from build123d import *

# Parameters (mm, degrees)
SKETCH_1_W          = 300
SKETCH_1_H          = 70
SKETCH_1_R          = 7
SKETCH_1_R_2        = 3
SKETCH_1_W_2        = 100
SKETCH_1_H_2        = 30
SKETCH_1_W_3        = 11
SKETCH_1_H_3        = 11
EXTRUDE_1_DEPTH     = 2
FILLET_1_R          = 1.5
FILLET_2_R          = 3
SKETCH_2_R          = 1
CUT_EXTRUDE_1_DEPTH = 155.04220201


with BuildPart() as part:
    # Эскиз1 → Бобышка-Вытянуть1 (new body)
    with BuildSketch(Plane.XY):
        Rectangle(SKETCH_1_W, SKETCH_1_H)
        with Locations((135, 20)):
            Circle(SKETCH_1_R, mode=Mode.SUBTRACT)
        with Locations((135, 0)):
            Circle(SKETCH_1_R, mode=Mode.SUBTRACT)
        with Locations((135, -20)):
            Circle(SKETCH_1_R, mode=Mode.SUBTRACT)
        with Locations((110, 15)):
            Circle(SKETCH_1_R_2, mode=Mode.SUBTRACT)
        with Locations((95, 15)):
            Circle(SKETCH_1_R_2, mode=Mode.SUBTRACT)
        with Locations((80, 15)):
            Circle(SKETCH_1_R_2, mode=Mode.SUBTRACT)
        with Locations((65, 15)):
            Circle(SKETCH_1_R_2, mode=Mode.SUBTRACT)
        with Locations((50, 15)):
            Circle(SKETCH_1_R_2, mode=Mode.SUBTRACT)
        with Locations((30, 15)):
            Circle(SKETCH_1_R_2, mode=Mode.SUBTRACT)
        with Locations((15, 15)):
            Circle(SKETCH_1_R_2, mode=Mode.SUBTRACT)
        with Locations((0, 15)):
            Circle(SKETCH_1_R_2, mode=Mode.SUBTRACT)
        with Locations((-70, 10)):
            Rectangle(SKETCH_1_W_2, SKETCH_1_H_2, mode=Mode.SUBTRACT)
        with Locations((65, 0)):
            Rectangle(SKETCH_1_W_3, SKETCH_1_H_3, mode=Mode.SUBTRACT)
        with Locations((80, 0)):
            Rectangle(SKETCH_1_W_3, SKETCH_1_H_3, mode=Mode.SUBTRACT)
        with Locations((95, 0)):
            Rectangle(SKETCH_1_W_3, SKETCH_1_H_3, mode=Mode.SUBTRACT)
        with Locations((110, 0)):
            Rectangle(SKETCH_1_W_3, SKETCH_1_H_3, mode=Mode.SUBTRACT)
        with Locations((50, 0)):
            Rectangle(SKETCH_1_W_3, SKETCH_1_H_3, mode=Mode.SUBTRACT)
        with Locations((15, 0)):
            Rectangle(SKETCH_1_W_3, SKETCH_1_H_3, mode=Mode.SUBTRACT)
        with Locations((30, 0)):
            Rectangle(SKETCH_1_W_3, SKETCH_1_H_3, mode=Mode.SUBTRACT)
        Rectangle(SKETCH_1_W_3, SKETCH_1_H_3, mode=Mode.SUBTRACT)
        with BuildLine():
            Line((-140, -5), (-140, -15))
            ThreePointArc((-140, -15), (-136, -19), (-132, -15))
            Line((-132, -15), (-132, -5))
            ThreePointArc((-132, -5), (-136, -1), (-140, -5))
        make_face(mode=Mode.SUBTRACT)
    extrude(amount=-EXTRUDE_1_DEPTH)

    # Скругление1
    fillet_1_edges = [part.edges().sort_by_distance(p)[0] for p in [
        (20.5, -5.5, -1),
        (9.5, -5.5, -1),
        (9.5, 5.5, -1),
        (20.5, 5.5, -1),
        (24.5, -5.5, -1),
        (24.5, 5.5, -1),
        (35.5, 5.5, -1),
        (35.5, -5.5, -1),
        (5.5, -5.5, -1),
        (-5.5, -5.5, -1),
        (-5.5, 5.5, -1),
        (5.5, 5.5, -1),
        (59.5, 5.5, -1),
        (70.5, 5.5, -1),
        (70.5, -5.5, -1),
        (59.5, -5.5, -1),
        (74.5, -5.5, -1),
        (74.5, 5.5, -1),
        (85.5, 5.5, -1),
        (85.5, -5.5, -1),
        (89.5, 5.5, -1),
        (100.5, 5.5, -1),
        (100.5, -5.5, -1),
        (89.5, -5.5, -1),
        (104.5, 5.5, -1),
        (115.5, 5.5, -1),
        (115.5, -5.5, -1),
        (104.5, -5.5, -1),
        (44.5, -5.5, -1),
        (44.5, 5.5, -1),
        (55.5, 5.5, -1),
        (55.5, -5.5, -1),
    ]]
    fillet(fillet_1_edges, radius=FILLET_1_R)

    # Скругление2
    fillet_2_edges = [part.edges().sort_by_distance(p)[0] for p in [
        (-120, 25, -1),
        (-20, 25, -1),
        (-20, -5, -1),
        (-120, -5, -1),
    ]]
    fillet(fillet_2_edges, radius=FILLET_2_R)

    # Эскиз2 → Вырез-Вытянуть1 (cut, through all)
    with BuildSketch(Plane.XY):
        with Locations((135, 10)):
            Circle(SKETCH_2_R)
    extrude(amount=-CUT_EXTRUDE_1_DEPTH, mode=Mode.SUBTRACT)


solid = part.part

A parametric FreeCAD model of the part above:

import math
import FreeCAD as App
import Part
import Sketcher
from FreeCAD import Vector


def edges_at(feature, points):
    """Names of the edges that pass closest to the given points."""
    edges = feature.Shape.Edges
    near = lambda p: min(range(len(edges)), key=lambda i: edges[i].distToShape(Part.Vertex(*p))[0])
    return sorted({f"Edge{near(p) + 1}" for p in points})

doc = App.newDocument("Part")
params = doc.addObject("Spreadsheet::Sheet", "Params")
for row, (alias, value) in enumerate([
    ("sketch1_diameter", "14 mm"),
    ("sketch1_diameter2", "6 mm"),
    ("sketch1_radius", "4 mm"),
    ("sketch1_width", "300 mm"),
    ("sketch1_width2", "100 mm"),
    ("pad1_length", "2 mm"),
    ("fillet_radius", "1.5 mm"),
    ("fillet2_radius", "3 mm"),
    ("sketch2_diameter", "2 mm"),
], start=1):
    params.set(f"A{row}", alias)
    params.set(f"B{row}", "=" + value)
    params.setAlias(f"B{row}", alias)

body = doc.addObject("PartDesign::Body", "Body")

sketch1 = doc.addObject("Sketcher::SketchObject", "Sketch")
body.addObject(sketch1)
sketch1.AttachmentSupport = (doc.XY_Plane, [""])
sketch1.MapMode = "FlatFace"
sketch1.addGeometry([
    Part.LineSegment(Vector(-150, 35, 0), Vector(-150, -35, 0)),
    Part.LineSegment(Vector(-150, -35, 0), Vector(150, -35, 0)),
    Part.LineSegment(Vector(150, -35, 0), Vector(150, 35, 0)),
    Part.LineSegment(Vector(150, 35, 0), Vector(-150, 35, 0)),
    Part.LineSegment(Vector(-140, -15, 0), Vector(-140, -5, 0)),
    Part.ArcOfCircle(Part.Circle(Vector(-136, -5, 0), Vector(0, 0, 1), 4), math.radians(0), math.radians(180)),
    Part.LineSegment(Vector(-132, -5, 0), Vector(-132, -15, 0)),
    Part.ArcOfCircle(Part.Circle(Vector(-136, -15, 0), Vector(0, 0, 1), 4), math.radians(180), math.radians(360)),
    Part.Circle(Vector(135, -20, 0), Vector(0, 0, 1), 7),
    Part.LineSegment(Vector(-20, -5, 0), Vector(-120, -5, 0)),
    Part.LineSegment(Vector(-120, -5, 0), Vector(-120, 25, 0)),
    Part.LineSegment(Vector(-120, 25, 0), Vector(-20, 25, 0)),
    Part.LineSegment(Vector(-20, 25, 0), Vector(-20, -5, 0)),
    Part.LineSegment(Vector(5.5, -5.5, 0), Vector(-5.5, -5.5, 0)),
    Part.LineSegment(Vector(-5.5, -5.5, 0), Vector(-5.5, 5.5, 0)),
    Part.LineSegment(Vector(-5.5, 5.5, 0), Vector(5.5, 5.5, 0)),
    Part.LineSegment(Vector(5.5, 5.5, 0), Vector(5.5, -5.5, 0)),
    Part.Circle(Vector(0, 15, 0), Vector(0, 0, 1), 3),
    Part.LineSegment(Vector(20.5, -5.5, 0), Vector(9.5, -5.5, 0)),
    Part.LineSegment(Vector(9.5, -5.5, 0), Vector(9.5, 5.5, 0)),
    Part.LineSegment(Vector(9.5, 5.5, 0), Vector(20.5, 5.5, 0)),
    Part.LineSegment(Vector(20.5, 5.5, 0), Vector(20.5, -5.5, 0)),
    Part.LineSegment(Vector(35.5, -5.5, 0), Vector(24.5, -5.5, 0)),
    Part.LineSegment(Vector(24.5, -5.5, 0), Vector(24.5, 5.5, 0)),
    Part.LineSegment(Vector(24.5, 5.5, 0), Vector(35.5, 5.5, 0)),
    Part.LineSegment(Vector(35.5, 5.5, 0), Vector(35.5, -5.5, 0)),
    Part.LineSegment(Vector(55.5, -5.5, 0), Vector(44.5, -5.5, 0)),
    Part.LineSegment(Vector(44.5, -5.5, 0), Vector(44.5, 5.5, 0)),
    Part.LineSegment(Vector(44.5, 5.5, 0), Vector(55.5, 5.5, 0)),
    Part.LineSegment(Vector(55.5, 5.5, 0), Vector(55.5, -5.5, 0)),
    Part.LineSegment(Vector(70.5, -5.5, 0), Vector(59.5, -5.5, 0)),
    Part.LineSegment(Vector(59.5, -5.5, 0), Vector(59.5, 5.5, 0)),
    Part.LineSegment(Vector(59.5, 5.5, 0), Vector(70.5, 5.5, 0)),
    Part.LineSegment(Vector(70.5, 5.5, 0), Vector(70.5, -5.5, 0)),
    Part.LineSegment(Vector(85.5, -5.5, 0), Vector(74.5, -5.5, 0)),
    Part.LineSegment(Vector(74.5, -5.5, 0), Vector(74.5, 5.5, 0)),
    Part.LineSegment(Vector(74.5, 5.5, 0), Vector(85.5, 5.5, 0)),
    Part.LineSegment(Vector(85.5, 5.5, 0), Vector(85.5, -5.5, 0)),
    Part.LineSegment(Vector(100.5, -5.5, 0), Vector(89.5, -5.5, 0)),
    Part.LineSegment(Vector(89.5, -5.5, 0), Vector(89.5, 5.5, 0)),
    Part.LineSegment(Vector(89.5, 5.5, 0), Vector(100.5, 5.5, 0)),
    Part.LineSegment(Vector(100.5, 5.5, 0), Vector(100.5, -5.5, 0)),
    Part.LineSegment(Vector(115.5, -5.5, 0), Vector(104.5, -5.5, 0)),
    Part.LineSegment(Vector(104.5, -5.5, 0), Vector(104.5, 5.5, 0)),
    Part.LineSegment(Vector(104.5, 5.5, 0), Vector(115.5, 5.5, 0)),
    Part.LineSegment(Vector(115.5, 5.5, 0), Vector(115.5, -5.5, 0)),
    Part.Circle(Vector(135, 0, 0), Vector(0, 0, 1), 7),
    Part.Circle(Vector(15, 15, 0), Vector(0, 0, 1), 3),
    Part.Circle(Vector(30, 15, 0), Vector(0, 0, 1), 3),
    Part.Circle(Vector(50, 15, 0), Vector(0, 0, 1), 3),
    Part.Circle(Vector(65, 15, 0), Vector(0, 0, 1), 3),
    Part.Circle(Vector(80, 15, 0), Vector(0, 0, 1), 3),
    Part.Circle(Vector(95, 15, 0), Vector(0, 0, 1), 3),
    Part.Circle(Vector(110, 15, 0), Vector(0, 0, 1), 3),
    Part.Circle(Vector(135, 20, 0), Vector(0, 0, 1), 7),
], False)
sketch1.addConstraint([
    Sketcher.Constraint("Coincident", 0, 2, 1, 1),
    Sketcher.Constraint("Coincident", 1, 2, 2, 1),
    Sketcher.Constraint("Coincident", 2, 2, 3, 1),
    Sketcher.Constraint("Coincident", 3, 2, 0, 1),
    Sketcher.Constraint("Tangent", 4, 2, 5, 2),
    Sketcher.Constraint("Tangent", 5, 1, 6, 1),
    Sketcher.Constraint("Tangent", 6, 2, 7, 2),
    Sketcher.Constraint("Tangent", 7, 1, 4, 1),
    Sketcher.Constraint("Coincident", 9, 2, 10, 1),
    Sketcher.Constraint("Coincident", 10, 2, 11, 1),
    Sketcher.Constraint("Coincident", 11, 2, 12, 1),
    Sketcher.Constraint("Coincident", 12, 2, 9, 1),
    Sketcher.Constraint("Coincident", 13, 2, 14, 1),
    Sketcher.Constraint("Coincident", 14, 2, 15, 1),
    Sketcher.Constraint("Coincident", 15, 2, 16, 1),
    Sketcher.Constraint("Coincident", 16, 2, 13, 1),
    Sketcher.Constraint("Coincident", 18, 2, 19, 1),
    Sketcher.Constraint("Coincident", 19, 2, 20, 1),
    Sketcher.Constraint("Coincident", 20, 2, 21, 1),
    Sketcher.Constraint("Coincident", 21, 2, 18, 1),
    Sketcher.Constraint("Coincident", 22, 2, 23, 1),
    Sketcher.Constraint("Coincident", 23, 2, 24, 1),
    Sketcher.Constraint("Coincident", 24, 2, 25, 1),
    Sketcher.Constraint("Coincident", 25, 2, 22, 1),
    Sketcher.Constraint("Coincident", 26, 2, 27, 1),
    Sketcher.Constraint("Coincident", 27, 2, 28, 1),
    Sketcher.Constraint("Coincident", 28, 2, 29, 1),
    Sketcher.Constraint("Coincident", 29, 2, 26, 1),
    Sketcher.Constraint("Coincident", 30, 2, 31, 1),
    Sketcher.Constraint("Coincident", 31, 2, 32, 1),
    Sketcher.Constraint("Coincident", 32, 2, 33, 1),
    Sketcher.Constraint("Coincident", 33, 2, 30, 1),
    Sketcher.Constraint("Coincident", 34, 2, 35, 1),
    Sketcher.Constraint("Coincident", 35, 2, 36, 1),
    Sketcher.Constraint("Coincident", 36, 2, 37, 1),
    Sketcher.Constraint("Coincident", 37, 2, 34, 1),
    Sketcher.Constraint("Coincident", 38, 2, 39, 1),
    Sketcher.Constraint("Coincident", 39, 2, 40, 1),
    Sketcher.Constraint("Coincident", 40, 2, 41, 1),
    Sketcher.Constraint("Coincident", 41, 2, 38, 1),
    Sketcher.Constraint("Coincident", 42, 2, 43, 1),
    Sketcher.Constraint("Coincident", 43, 2, 44, 1),
    Sketcher.Constraint("Coincident", 44, 2, 45, 1),
    Sketcher.Constraint("Coincident", 45, 2, 42, 1),
    Sketcher.Constraint("Vertical", 0),
    Sketcher.Constraint("Horizontal", 1),
    Sketcher.Constraint("Vertical", 2),
    Sketcher.Constraint("Horizontal", 3),
    Sketcher.Constraint("Vertical", 4),
    Sketcher.Constraint("Vertical", 6),
    Sketcher.Constraint("Horizontal", 9),
    Sketcher.Constraint("Vertical", 10),
    Sketcher.Constraint("Horizontal", 11),
    Sketcher.Constraint("Vertical", 12),
    Sketcher.Constraint("Horizontal", 13),
    Sketcher.Constraint("Vertical", 14),
    Sketcher.Constraint("Horizontal", 15),
    Sketcher.Constraint("Vertical", 16),
    Sketcher.Constraint("Horizontal", 18),
    Sketcher.Constraint("Vertical", 19),
    Sketcher.Constraint("Horizontal", 20),
    Sketcher.Constraint("Vertical", 21),
    Sketcher.Constraint("Horizontal", 22),
    Sketcher.Constraint("Vertical", 23),
    Sketcher.Constraint("Horizontal", 24),
    Sketcher.Constraint("Vertical", 25),
    Sketcher.Constraint("Horizontal", 26),
    Sketcher.Constraint("Vertical", 27),
    Sketcher.Constraint("Horizontal", 28),
    Sketcher.Constraint("Vertical", 29),
    Sketcher.Constraint("Horizontal", 30),
    Sketcher.Constraint("Vertical", 31),
    Sketcher.Constraint("Horizontal", 32),
    Sketcher.Constraint("Vertical", 33),
    Sketcher.Constraint("Horizontal", 34),
    Sketcher.Constraint("Vertical", 35),
    Sketcher.Constraint("Horizontal", 36),
    Sketcher.Constraint("Vertical", 37),
    Sketcher.Constraint("Horizontal", 38),
    Sketcher.Constraint("Vertical", 39),
    Sketcher.Constraint("Horizontal", 40),
    Sketcher.Constraint("Vertical", 41),
    Sketcher.Constraint("Horizontal", 42),
    Sketcher.Constraint("Vertical", 43),
    Sketcher.Constraint("Horizontal", 44),
    Sketcher.Constraint("Vertical", 45),
    Sketcher.Constraint("Equal", 8, 46),
    Sketcher.Constraint("Equal", 17, 47),
    Sketcher.Constraint("Equal", 47, 48),
    Sketcher.Constraint("Equal", 48, 49),
    Sketcher.Constraint("Equal", 49, 50),
    Sketcher.Constraint("Equal", 50, 51),
    Sketcher.Constraint("Equal", 51, 52),
    Sketcher.Constraint("Equal", 52, 53),
    Sketcher.Constraint("Equal", 46, 54),
    Sketcher.Constraint("Symmetric", 0, 2, 2, 2, -1, 1),
    Sketcher.Constraint("Symmetric", 13, 2, 15, 2, -1, 1),
    Sketcher.Constraint("Symmetric", 8, 3, 54, 3, -1),
    Sketcher.Constraint("PointOnObject", 17, 3, -2),
    Sketcher.Constraint("PointOnObject", 46, 3, -1),
    Sketcher.Constraint("Horizontal", 17, 3, 47, 3),
    Sketcher.Constraint("Horizontal", 47, 3, 48, 3),
    Sketcher.Constraint("Horizontal", 48, 3, 49, 3),
    Sketcher.Constraint("Horizontal", 49, 3, 50, 3),
    Sketcher.Constraint("Horizontal", 50, 3, 51, 3),
    Sketcher.Constraint("Horizontal", 51, 3, 52, 3),
    Sketcher.Constraint("Horizontal", 52, 3, 53, 3),
    Sketcher.Constraint("Horizontal", 5, 1, 9, 2),
    Sketcher.Constraint("Horizontal", 16, 2, 18, 2),
    Sketcher.Constraint("Horizontal", 15, 2, 19, 2),
    Sketcher.Constraint("Horizontal", 21, 2, 22, 2),
    Sketcher.Constraint("Horizontal", 20, 2, 23, 2),
    Sketcher.Constraint("Horizontal", 25, 2, 26, 2),
    Sketcher.Constraint("Horizontal", 24, 2, 27, 2),
    Sketcher.Constraint("Horizontal", 29, 2, 30, 2),
    Sketcher.Constraint("Horizontal", 28, 2, 31, 2),
    Sketcher.Constraint("Horizontal", 33, 2, 34, 2),
    Sketcher.Constraint("Horizontal", 32, 2, 35, 2),
    Sketcher.Constraint("Horizontal", 37, 2, 38, 2),
    Sketcher.Constraint("Horizontal", 36, 2, 39, 2),
    Sketcher.Constraint("Horizontal", 41, 2, 42, 2),
    Sketcher.Constraint("Horizontal", 40, 2, 43, 2),
    Sketcher.Constraint("Vertical", 8, 3, 46, 3),
    Sketcher.Constraint("Equal", 15, 18),
    Sketcher.Constraint("Equal", 20, 22),
    Sketcher.Constraint("Equal", 24, 26),
    Sketcher.Constraint("Equal", 28, 30),
    Sketcher.Constraint("Equal", 32, 34),
    Sketcher.Constraint("Equal", 36, 38),
    Sketcher.Constraint("Equal", 40, 42),
    Sketcher.Constraint("Equal", 44, 14),
    Sketcher.Constraint("Diameter", 8, 14.0),
    Sketcher.Constraint("Diameter", 17, 6.0),
    Sketcher.Constraint("Radius", 5, 4.0),
    Sketcher.Constraint("DistanceX", 1, 1, 1, 2, 300.0),
    Sketcher.Constraint("DistanceX", 9, 2, 9, 1, 100.0),
    Sketcher.Constraint("DistanceX", 13, 2, 13, 1, 11.0),
    Sketcher.Constraint("DistanceY", 0, 2, 0, 1, 70.0),
    Sketcher.Constraint("DistanceY", 4, 1, 4, 2, 10.0),
    Sketcher.Constraint("DistanceY", 10, 1, 10, 2, 30.0),
    Sketcher.Constraint("DistanceX", 5, 3, -1, 1, 136.0),
    Sketcher.Constraint("DistanceY", 5, 3, -1, 1, 5.0),
    Sketcher.Constraint("DistanceX", -1, 1, 8, 3, 135.0),
    Sketcher.Constraint("DistanceY", 8, 3, -1, 1, 20.0),
    Sketcher.Constraint("DistanceY", -1, 1, 17, 3, 15.0),
    Sketcher.Constraint("DistanceX", -1, 1, 47, 3, 15.0),
    Sketcher.Constraint("DistanceX", -1, 1, 48, 3, 30.0),
    Sketcher.Constraint("DistanceX", -1, 1, 49, 3, 50.0),
    Sketcher.Constraint("DistanceX", -1, 1, 50, 3, 65.0),
    Sketcher.Constraint("DistanceX", -1, 1, 51, 3, 80.0),
    Sketcher.Constraint("DistanceX", -1, 1, 52, 3, 95.0),
    Sketcher.Constraint("DistanceX", -1, 1, 53, 3, 110.0),
    Sketcher.Constraint("DistanceX", 9, 2, -1, 1, 120.0),
    Sketcher.Constraint("DistanceX", 16, 2, 18, 2, 4.0),
    Sketcher.Constraint("DistanceX", 21, 2, 22, 2, 4.0),
    Sketcher.Constraint("DistanceX", 25, 2, 26, 2, 9.0),
    Sketcher.Constraint("DistanceX", 29, 2, 30, 2, 4.0),
    Sketcher.Constraint("DistanceX", 33, 2, 34, 2, 4.0),
    Sketcher.Constraint("DistanceX", 37, 2, 38, 2, 4.0),
    Sketcher.Constraint("DistanceX", 41, 2, 42, 2, 4.0),
])
sketch1.setExpression("Constraints[131]", "Params.sketch1_diameter")
sketch1.setExpression("Constraints[132]", "Params.sketch1_diameter2")
sketch1.setExpression("Constraints[133]", "Params.sketch1_radius")
sketch1.setExpression("Constraints[134]", "Params.sketch1_width")
sketch1.setExpression("Constraints[135]", "Params.sketch1_width2")
pad1 = doc.addObject("PartDesign::Pad", "Pad")
body.addObject(pad1)
pad1.Profile = sketch1
pad1.setExpression("Length", "Params.pad1_length")
pad1.Reversed = True
doc.recompute()

fillet = doc.addObject("PartDesign::Fillet", "Fillet")
body.addObject(fillet)
fillet.Base = (pad1, edges_at(pad1, [
    (20.5, -5.5, -1),
    (9.5, -5.5, -1),
    (9.5, 5.5, -1),
    (20.5, 5.5, -1),
    (24.5, -5.5, -1),
    (24.5, 5.5, -1),
    (35.5, 5.5, -1),
    (35.5, -5.5, -1),
    (5.5, -5.5, -1),
    (-5.5, -5.5, -1),
    (-5.5, 5.5, -1),
    (5.5, 5.5, -1),
    (59.5, 5.5, -1),
    (70.5, 5.5, -1),
    (70.5, -5.5, -1),
    (59.5, -5.5, -1),
    (74.5, -5.5, -1),
    (74.5, 5.5, -1),
    (85.5, 5.5, -1),
    (85.5, -5.5, -1),
    (89.5, 5.5, -1),
    (100.5, 5.5, -1),
    (100.5, -5.5, -1),
    (89.5, -5.5, -1),
    (104.5, 5.5, -1),
    (115.5, 5.5, -1),
    (115.5, -5.5, -1),
    (104.5, -5.5, -1),
    (44.5, -5.5, -1),
    (44.5, 5.5, -1),
    (55.5, 5.5, -1),
    (55.5, -5.5, -1),
]))
fillet.setExpression("Radius", "Params.fillet_radius")
doc.recompute()

fillet2 = doc.addObject("PartDesign::Fillet", "Fillet001")
body.addObject(fillet2)
fillet2.Base = (fillet, edges_at(fillet, [
    (-120, 25, -1),
    (-20, 25, -1),
    (-20, -5, -1),
    (-120, -5, -1),
]))
fillet2.setExpression("Radius", "Params.fillet2_radius")

sketch2 = doc.addObject("Sketcher::SketchObject", "Sketch001")
body.addObject(sketch2)
sketch2.AttachmentSupport = (doc.XY_Plane, [""])
sketch2.MapMode = "FlatFace"
sketch2.addGeometry(Part.Circle(Vector(135, 10, 0), Vector(0, 0, 1), 1), False)
sketch2.addConstraint([
    Sketcher.Constraint("Diameter", 0, 2.0),
    Sketcher.Constraint("DistanceX", -1, 1, 0, 3, 135.0),
    Sketcher.Constraint("DistanceY", -1, 1, 0, 3, 10.0),
])
sketch2.setExpression("Constraints[0]", "Params.sketch2_diameter")
pocket1 = doc.addObject("PartDesign::Pocket", "Pocket")
body.addObject(pocket1)
pocket1.Profile = sketch2
pocket1.Type = "ThroughAll"

doc.recompute()
